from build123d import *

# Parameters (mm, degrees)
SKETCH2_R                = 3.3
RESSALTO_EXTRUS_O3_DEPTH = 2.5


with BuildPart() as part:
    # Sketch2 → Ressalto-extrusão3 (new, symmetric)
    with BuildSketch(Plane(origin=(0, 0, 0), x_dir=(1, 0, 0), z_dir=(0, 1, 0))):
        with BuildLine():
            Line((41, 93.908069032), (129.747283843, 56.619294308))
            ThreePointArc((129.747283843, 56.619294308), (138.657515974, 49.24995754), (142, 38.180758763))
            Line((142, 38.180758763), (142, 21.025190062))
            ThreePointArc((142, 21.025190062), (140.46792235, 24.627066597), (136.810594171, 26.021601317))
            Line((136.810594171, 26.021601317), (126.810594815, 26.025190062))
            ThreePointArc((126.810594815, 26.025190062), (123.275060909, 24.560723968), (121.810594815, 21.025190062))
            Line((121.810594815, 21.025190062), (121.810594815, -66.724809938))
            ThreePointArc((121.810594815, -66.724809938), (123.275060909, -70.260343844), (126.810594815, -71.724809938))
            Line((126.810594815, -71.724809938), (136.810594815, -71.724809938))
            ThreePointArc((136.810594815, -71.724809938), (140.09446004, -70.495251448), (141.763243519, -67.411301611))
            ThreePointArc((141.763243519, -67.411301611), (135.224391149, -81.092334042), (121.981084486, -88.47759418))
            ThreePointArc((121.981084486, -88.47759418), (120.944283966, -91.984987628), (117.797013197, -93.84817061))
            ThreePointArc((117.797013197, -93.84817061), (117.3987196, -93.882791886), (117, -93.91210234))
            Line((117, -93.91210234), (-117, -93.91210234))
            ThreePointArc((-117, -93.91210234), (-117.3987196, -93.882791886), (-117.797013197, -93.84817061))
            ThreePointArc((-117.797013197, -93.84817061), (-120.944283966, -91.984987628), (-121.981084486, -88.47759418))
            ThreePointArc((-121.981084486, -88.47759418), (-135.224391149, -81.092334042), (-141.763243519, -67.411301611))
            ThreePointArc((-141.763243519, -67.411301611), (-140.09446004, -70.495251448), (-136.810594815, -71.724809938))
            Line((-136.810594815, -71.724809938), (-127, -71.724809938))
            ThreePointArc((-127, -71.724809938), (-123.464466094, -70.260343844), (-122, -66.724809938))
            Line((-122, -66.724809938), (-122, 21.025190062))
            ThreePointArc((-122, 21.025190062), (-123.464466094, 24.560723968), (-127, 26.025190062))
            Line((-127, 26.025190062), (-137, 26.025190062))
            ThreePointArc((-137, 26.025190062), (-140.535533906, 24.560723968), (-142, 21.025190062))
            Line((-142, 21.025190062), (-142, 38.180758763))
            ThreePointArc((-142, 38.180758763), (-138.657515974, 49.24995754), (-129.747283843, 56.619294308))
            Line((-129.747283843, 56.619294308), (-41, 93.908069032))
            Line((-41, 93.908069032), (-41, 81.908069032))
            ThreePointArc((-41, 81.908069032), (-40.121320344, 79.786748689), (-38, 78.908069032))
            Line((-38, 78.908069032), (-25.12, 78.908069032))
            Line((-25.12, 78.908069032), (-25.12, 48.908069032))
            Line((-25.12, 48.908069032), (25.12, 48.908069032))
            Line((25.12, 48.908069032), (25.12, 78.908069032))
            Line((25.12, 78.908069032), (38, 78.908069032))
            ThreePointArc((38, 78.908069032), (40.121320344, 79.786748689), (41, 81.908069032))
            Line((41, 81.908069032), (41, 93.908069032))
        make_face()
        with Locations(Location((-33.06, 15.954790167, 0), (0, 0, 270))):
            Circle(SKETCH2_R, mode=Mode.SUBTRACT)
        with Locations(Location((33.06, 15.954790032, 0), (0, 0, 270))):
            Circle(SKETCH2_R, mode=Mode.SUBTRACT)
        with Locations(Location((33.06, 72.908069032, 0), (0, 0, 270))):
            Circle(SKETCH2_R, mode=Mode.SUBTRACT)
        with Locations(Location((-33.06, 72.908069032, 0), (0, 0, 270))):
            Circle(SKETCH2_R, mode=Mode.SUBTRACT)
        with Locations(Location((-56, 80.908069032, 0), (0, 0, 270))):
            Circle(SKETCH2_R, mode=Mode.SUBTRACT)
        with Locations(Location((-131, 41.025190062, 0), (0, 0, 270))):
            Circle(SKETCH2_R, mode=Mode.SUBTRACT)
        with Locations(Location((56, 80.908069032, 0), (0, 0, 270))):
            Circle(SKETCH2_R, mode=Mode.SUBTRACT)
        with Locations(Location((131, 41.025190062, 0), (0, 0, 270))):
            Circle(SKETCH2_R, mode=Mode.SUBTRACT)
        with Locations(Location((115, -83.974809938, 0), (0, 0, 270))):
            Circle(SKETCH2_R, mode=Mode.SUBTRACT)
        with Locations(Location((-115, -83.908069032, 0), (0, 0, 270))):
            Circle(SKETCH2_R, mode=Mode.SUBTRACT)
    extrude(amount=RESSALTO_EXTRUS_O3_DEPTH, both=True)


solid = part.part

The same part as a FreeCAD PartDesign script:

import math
import FreeCAD as App
import Part
import Sketcher
from FreeCAD import Vector
Q = App.Units.Quantity

doc = App.newDocument("Part")
body = doc.addObject("PartDesign::Body", "Body")

# Sketch on XZ plane
sketch1 = body.newObject("Sketcher::SketchObject", "Sketch")
sketch1.AttachmentSupport = (doc.getObject("XZ_Plane"), [""])
sketch1.MapMode = "FlatFace"
sketch1.addGeometry([
    Part.LineSegment(Vector(129.7, -56.6, 0), Vector(41, -93.9, 0)),  # 0
    Part.LineSegment(Vector(41, -93.9, 0), Vector(41, -81.9, 0)),  # 1
    Part.ArcOfCircle(Part.Circle(Vector(38, -81.9, 0), Vector(0, 0, 1), 3), math.radians(0), math.radians(90)),  # 2
    Part.LineSegment(Vector(38, -78.9, 0), Vector(25.1, -78.9, 0)),  # 3
    Part.LineSegment(Vector(25.1, -78.9, 0), Vector(25.1, -48.9, 0)),  # 4
    Part.LineSegment(Vector(25.1, -48.9, 0), Vector(-25.1, -48.9, 0)),  # 5
    Part.LineSegment(Vector(-25.1, -48.9, 0), Vector(-25.1, -78.9, 0)),  # 6
    Part.LineSegment(Vector(-25.1, -78.9, 0), Vector(-38, -78.9, 0)),  # 7
    Part.ArcOfCircle(Part.Circle(Vector(-38, -81.9, 0), Vector(0, 0, 1), 3), math.radians(90), math.radians(180)),  # 8
    Part.LineSegment(Vector(-41, -81.9, 0), Vector(-41, -93.9, 0)),  # 9
    Part.LineSegment(Vector(-41, -93.9, 0), Vector(-129.7, -56.6, 0)),  # 10
    Part.ArcOfCircle(Part.Circle(Vector(-122, -38.2, 0), Vector(0, 0, 1), 20), math.radians(-180), math.radians(-113)),  # 11
    Part.LineSegment(Vector(-142, -38.2, 0), Vector(-142, -21, 0)),  # 12
    Part.ArcOfCircle(Part.Circle(Vector(-137, -21, 0), Vector(0, 0, 1), 5), math.radians(180), math.radians(270)),  # 13
    Part.LineSegment(Vector(-137, -26, 0), Vector(-127, -26, 0)),  # 14
    Part.ArcOfCircle(Part.Circle(Vector(-127, -21, 0), Vector(0, 0, 1), 5), math.radians(-90), math.radians(0)),  # 15
    Part.LineSegment(Vector(-122, -21, 0), Vector(-122, 66.7, 0)),  # 16
    Part.ArcOfCircle(Part.Circle(Vector(-127, 66.7, 0), Vector(0, 0, 1), 5), math.radians(0), math.radians(90)),  # 17
    Part.LineSegment(Vector(-127, 71.7, 0), Vector(-136.8, 71.7, 0)),  # 18
    Part.ArcOfCircle(Part.Circle(Vector(-136.8, 66.7, 0), Vector(0, 0, 1), 5), math.radians(90), math.radians(172)),  # 19
    Part.ArcOfCircle(Part.Circle(Vector(-117, 64, 0), Vector(0, 0, 1), 25), math.radians(101), math.radians(172)),  # 20
    Part.ArcOfCircle(Part.Circle(Vector(-117, 88.9, 0), Vector(0, 0, 1), 5), math.radians(99), math.radians(185)),  # 21
    Part.ArcOfCircle(Part.Circle(Vector(-115, 64, 0), Vector(0, 0, 1), 30), math.radians(93.82), math.radians(95.35)),  # 22
    Part.LineSegment(Vector(-117, 93.9, 0), Vector(117, 93.9, 0)),  # 23
    Part.ArcOfCircle(Part.Circle(Vector(115, 64, 0), Vector(0, 0, 1), 30), math.radians(84.65), math.radians(86.18)),  # 24
    Part.ArcOfCircle(Part.Circle(Vector(117, 88.9, 0), Vector(0, 0, 1), 5), math.radians(-5), math.radians(81)),  # 25
    Part.ArcOfCircle(Part.Circle(Vector(117, 64, 0), Vector(0, 0, 1), 25), math.radians(8), math.radians(79)),  # 26
    Part.ArcOfCircle(Part.Circle(Vector(136.8, 66.7, 0), Vector(0, 0, 1), 5), math.radians(8), math.radians(90)),  # 27
    Part.LineSegment(Vector(136.8, 71.7, 0), Vector(126.8, 71.7, 0)),  # 28
    Part.ArcOfCircle(Part.Circle(Vector(126.8, 66.7, 0), Vector(0, 0, 1), 5), math.radians(90), math.radians(180)),  # 29
    Part.LineSegment(Vector(121.8, 66.7, 0), Vector(121.8, -21, 0)),  # 30
    Part.ArcOfCircle(Part.Circle(Vector(126.8, -21, 0), Vector(0, 0, 1), 5), math.radians(180), math.radians(270)),  # 31
    Part.LineSegment(Vector(126.8, -26, 0), Vector(136.8, -26, 0)),  # 32
    Part.ArcOfCircle(Part.Circle(Vector(137, -21, 0), Vector(0, 0, 1), 5), math.radians(-92), math.radians(0)),  # 33
    Part.LineSegment(Vector(142, -21, 0), Vector(142, -38.2, 0)),  # 34
    Part.ArcOfCircle(Part.Circle(Vector(122, -38.2, 0), Vector(0, 0, 1), 20), math.radians(-67), math.radians(0)),  # 35
    Part.Circle(Vector(115, 84, 0), Vector(0, 0, 1), 3.3),  # 36
    Part.Circle(Vector(-115, 83.9, 0), Vector(0, 0, 1), 3.3),  # 37
    Part.Circle(Vector(131, -41, 0), Vector(0, 0, 1), 3.3),  # 38
    Part.Circle(Vector(33.1, -16, 0), Vector(0, 0, 1), 3.3),  # 39
    Part.Circle(Vector(56, -80.9, 0), Vector(0, 0, 1), 3.3),  # 40
    Part.Circle(Vector(33.1, -72.9, 0), Vector(0, 0, 1), 3.3),  # 41
    Part.Circle(Vector(-33.1, -16, 0), Vector(0, 0, 1), 3.3),  # 42
    Part.Circle(Vector(-131, -41, 0), Vector(0, 0, 1), 3.3),  # 43
    Part.Circle(Vector(-33.1, -72.9, 0), Vector(0, 0, 1), 3.3),  # 44
    Part.Circle(Vector(-56, -80.9, 0), Vector(0, 0, 1), 3.3),  # 45
], False)
sketch1.addConstraint([
    Sketcher.Constraint("Coincident", 0, 2, 1, 1),
    Sketcher.Constraint("Tangent", 1, 2, 2, 1),
    Sketcher.Constraint("Tangent", 2, 2, 3, 1),
    Sketcher.Constraint("Coincident", 3, 2, 4, 1),
    Sketcher.Constraint("Coincident", 4, 2, 5, 1),
    Sketcher.Constraint("Coincident", 5, 2, 6, 1),
    Sketcher.Constraint("Coincident", 6, 2, 7, 1),
    Sketcher.Constraint("Tangent", 7, 2, 8, 1),
    Sketcher.Constraint("Tangent", 8, 2, 9, 1),
    Sketcher.Constraint("Coincident", 9, 2, 10, 1),
    Sketcher.Constraint("Tangent", 10, 2, 11, 2),
    Sketcher.Constraint("Tangent", 11, 1, 12, 1),
    Sketcher.Constraint("Tangent", 12, 2, 13, 1),
    Sketcher.Constraint("Tangent", 13, 2, 14, 1),
    Sketcher.Constraint("Tangent", 14, 2, 15, 1),
    Sketcher.Constraint("Tangent", 15, 2, 16, 1),
    Sketcher.Constraint("Tangent", 16, 2, 17, 1),
    Sketcher.Constraint("Tangent", 17, 2, 18, 1),
    Sketcher.Constraint("Tangent", 18, 2, 19, 1),
    Sketcher.Constraint("Tangent", 19, 2, 20, 2),
    Sketcher.Constraint("Coincident", 20, 1, 21, 2),
    Sketcher.Constraint("Coincident", 21, 1, 22, 2),
    Sketcher.Constraint("Coincident", 22, 1, 23, 1),
    Sketcher.Constraint("Coincident", 23, 2, 24, 2),
    Sketcher.Constraint("Coincident", 24, 1, 25, 2),
    Sketcher.Constraint("Coincident", 25, 1, 26, 2),
    Sketcher.Constraint("Tangent", 26, 1, 27, 1),
    Sketcher.Constraint("Tangent", 27, 2, 28, 1),
    Sketcher.Constraint("Tangent", 28, 2, 29, 1),
    Sketcher.Constraint("Tangent", 29, 2, 30, 1),
    Sketcher.Constraint("Tangent", 30, 2, 31, 1),
    Sketcher.Constraint("Coincident", 31, 2, 32, 1),
    Sketcher.Constraint("Coincident", 32, 2, 33, 1),
    Sketcher.Constraint("Tangent", 33, 2, 34, 1),
    Sketcher.Constraint("Tangent", 34, 2, 35, 2),
    Sketcher.Constraint("Tangent", 35, 1, 0, 1),
    Sketcher.Constraint("Vertical", 1),
    Sketcher.Constraint("Horizontal", 3),
    Sketcher.Constraint("Vertical", 4),
    Sketcher.Constraint("Horizontal", 5),
    Sketcher.Constraint("Vertical", 6),
    Sketcher.Constraint("Horizontal", 7),
    Sketcher.Constraint("Vertical", 9),
    Sketcher.Constraint("Vertical", 12),
    Sketcher.Constraint("Horizontal", 14),
    Sketcher.Constraint("Vertical", 16),
    Sketcher.Constraint("Horizontal", 18),
    Sketcher.Constraint("Horizontal", 23),
    Sketcher.Constraint("Horizontal", 28),
    Sketcher.Constraint("Vertical", 30),
    Sketcher.Constraint("Vertical", 34),
    Sketcher.Constraint("Equal", 2, 8),
    Sketcher.Constraint("Equal", 13, 15),
    Sketcher.Constraint("Equal", 15, 17),
    Sketcher.Constraint("Equal", 17, 19),
    Sketcher.Constraint("Equal", 19, 21),
    Sketcher.Constraint("Equal", 22, 24),
    Sketcher.Constraint("Equal", 21, 25),
    Sketcher.Constraint("Equal", 20, 26),
    Sketcher.Constraint("Equal", 25, 27),
    Sketcher.Constraint("Equal", 27, 29),
    Sketcher.Constraint("Equal", 29, 31),
    Sketcher.Constraint("Equal", 31, 33),
    Sketcher.Constraint("Equal", 11, 35),
    Sketcher.Constraint("Equal", 36, 37),
    Sketcher.Constraint("Equal", 37, 38),
    Sketcher.Constraint("Equal", 38, 39),
    Sketcher.Constraint("Equal", 39, 40),
    Sketcher.Constraint("Equal", 40, 41),
    Sketcher.Constraint("Equal", 41, 42),
    Sketcher.Constraint("Equal", 42, 43),
    Sketcher.Constraint("Equal", 43, 44),
    Sketcher.Constraint("Equal", 44, 45),
    Sketcher.Constraint("Symmetric", 2, 3, 8, 3, -2),
    Sketcher.Constraint("Symmetric", 22, 3, 24, 3, -2),
    Sketcher.Constraint("Symmetric", 21, 3, 25, 3, -2),
    Sketcher.Constraint("Symmetric", 20, 3, 26, 3, -2),
    Sketcher.Constraint("Symmetric", 13, 3, 33, 3, -2),
    Sketcher.Constraint("Symmetric", 39, 3, 42, 3, -2),
    Sketcher.Constraint("Symmetric", 38, 3, 43, 3, -2),
    Sketcher.Constraint("Symmetric", 41, 3, 44, 3, -2),
    Sketcher.Constraint("Symmetric", 40, 3, 45, 3, -2),
    Sketcher.Constraint("Symmetric", 10, 2, 35, 1, -2),
    Sketcher.Constraint("Horizontal", 19, 3, 27, 3),
    Sketcher.Constraint("Horizontal", 15, 3, 31, 3),
    Sketcher.Constraint("Vertical", 20, 3, 21, 3),
    Sketcher.Constraint("Vertical", 24, 3, 36, 3),
    Sketcher.Constraint("Vertical", 22, 3, 37, 3),
    Sketcher.Constraint("Vertical", 39, 3, 41, 3),
    Sketcher.Constraint("Vertical", 11, 3, 15, 2),
    Sketcher.Constraint("Vertical", 21, 3, 22, 1),
    Sketcher.Constraint("Vertical", 28, 2, 31, 2),
    Sketcher.Constraint("Vertical", 27, 2, 32, 2),
    Sketcher.Constraint("Equal", 3, 7),
    Sketcher.Constraint("Equal", 14, 28),
    Sketcher.Constraint("Radius", 2, Q("3 mm")),
    Sketcher.Constraint("Radius", 11, Q("20 mm")),
    Sketcher.Constraint("Radius", 13, Q("5 mm")),
    Sketcher.Constraint("Radius", 20, Q("25 mm")),
    Sketcher.Constraint("Diameter", 36, Q("6.6 mm")),
    Sketcher.Constraint("DistanceX", 23, 1, 23, 2, Q("234 mm")),
    Sketcher.Constraint("DistanceY", 1, 1, 1, 2, Q("12 mm")),
    Sketcher.Constraint("DistanceY", 4, 1, 4, 2, Q("30 mm")),
    Sketcher.Constraint("DistanceX", -1, 1, 2, 3, Q("38 mm")),
    Sketcher.Constraint("DistanceX", 11, 3, -1, 1, Q("122 mm")),
    Sketcher.Constraint("DistanceX", 22, 3, -1, 1, Q("115 mm")),
    Sketcher.Constraint("DistanceX", -1, 1, 38, 3, Q("131 mm")),
    Sketcher.Constraint("DistanceX", -1, 1, 40, 3, Q("56 mm")),
    Sketcher.Constraint("DistanceX", 3, 2, 3, 1, Q("12.88 mm")),
    Sketcher.Constraint("DistanceY", 16, 1, 16, 2, Q("87.75 mm")),
    Sketcher.Constraint("DistanceX", -1, 1, 39, 3, Q("33.06 mm")),
    Sketcher.Constraint("Radius", 22, Q("30.000002 mm")),
    Sketcher.Constraint("DistanceY", 12, 1, 12, 2, Q("17.155569 mm")),
    Sketcher.Constraint("DistanceY", -1, 1, 19, 2, Q("67.411302 mm")),
    Sketcher.Constraint("DistanceY", 32, 2, -1, 1, Q("26.021601 mm")),
    Sketcher.Constraint("DistanceY", 2, 3, -1, 1, Q("81.908069 mm")),
    Sketcher.Constraint("DistanceY", -1, 1, 22, 3, Q("63.978841 mm")),
    Sketcher.Constraint("DistanceY", -1, 1, 36, 3, Q("83.97481 mm")),
    Sketcher.Constraint("DistanceY", -1, 1, 37, 3, Q("83.908069 mm")),
    Sketcher.Constraint("DistanceY", 38, 3, -1, 1, Q("41.02519 mm")),
    Sketcher.Constraint("DistanceY", 39, 3, -1, 1, Q("15.95479 mm")),
    Sketcher.Constraint("DistanceY", 40, 3, -1, 1, Q("80.908069 mm")),
    Sketcher.Constraint("DistanceY", 41, 3, -1, 1, Q("72.908069 mm")),
    Sketcher.Constraint("DistanceY", -1, 1, 21, 1, Q("93.848171 mm")),
])
pad1 = body.newObject("PartDesign::Pad", "Pad")
pad1.Profile = sketch1
pad1.Length = 5
pad1.Midplane = True

doc.recompute()
